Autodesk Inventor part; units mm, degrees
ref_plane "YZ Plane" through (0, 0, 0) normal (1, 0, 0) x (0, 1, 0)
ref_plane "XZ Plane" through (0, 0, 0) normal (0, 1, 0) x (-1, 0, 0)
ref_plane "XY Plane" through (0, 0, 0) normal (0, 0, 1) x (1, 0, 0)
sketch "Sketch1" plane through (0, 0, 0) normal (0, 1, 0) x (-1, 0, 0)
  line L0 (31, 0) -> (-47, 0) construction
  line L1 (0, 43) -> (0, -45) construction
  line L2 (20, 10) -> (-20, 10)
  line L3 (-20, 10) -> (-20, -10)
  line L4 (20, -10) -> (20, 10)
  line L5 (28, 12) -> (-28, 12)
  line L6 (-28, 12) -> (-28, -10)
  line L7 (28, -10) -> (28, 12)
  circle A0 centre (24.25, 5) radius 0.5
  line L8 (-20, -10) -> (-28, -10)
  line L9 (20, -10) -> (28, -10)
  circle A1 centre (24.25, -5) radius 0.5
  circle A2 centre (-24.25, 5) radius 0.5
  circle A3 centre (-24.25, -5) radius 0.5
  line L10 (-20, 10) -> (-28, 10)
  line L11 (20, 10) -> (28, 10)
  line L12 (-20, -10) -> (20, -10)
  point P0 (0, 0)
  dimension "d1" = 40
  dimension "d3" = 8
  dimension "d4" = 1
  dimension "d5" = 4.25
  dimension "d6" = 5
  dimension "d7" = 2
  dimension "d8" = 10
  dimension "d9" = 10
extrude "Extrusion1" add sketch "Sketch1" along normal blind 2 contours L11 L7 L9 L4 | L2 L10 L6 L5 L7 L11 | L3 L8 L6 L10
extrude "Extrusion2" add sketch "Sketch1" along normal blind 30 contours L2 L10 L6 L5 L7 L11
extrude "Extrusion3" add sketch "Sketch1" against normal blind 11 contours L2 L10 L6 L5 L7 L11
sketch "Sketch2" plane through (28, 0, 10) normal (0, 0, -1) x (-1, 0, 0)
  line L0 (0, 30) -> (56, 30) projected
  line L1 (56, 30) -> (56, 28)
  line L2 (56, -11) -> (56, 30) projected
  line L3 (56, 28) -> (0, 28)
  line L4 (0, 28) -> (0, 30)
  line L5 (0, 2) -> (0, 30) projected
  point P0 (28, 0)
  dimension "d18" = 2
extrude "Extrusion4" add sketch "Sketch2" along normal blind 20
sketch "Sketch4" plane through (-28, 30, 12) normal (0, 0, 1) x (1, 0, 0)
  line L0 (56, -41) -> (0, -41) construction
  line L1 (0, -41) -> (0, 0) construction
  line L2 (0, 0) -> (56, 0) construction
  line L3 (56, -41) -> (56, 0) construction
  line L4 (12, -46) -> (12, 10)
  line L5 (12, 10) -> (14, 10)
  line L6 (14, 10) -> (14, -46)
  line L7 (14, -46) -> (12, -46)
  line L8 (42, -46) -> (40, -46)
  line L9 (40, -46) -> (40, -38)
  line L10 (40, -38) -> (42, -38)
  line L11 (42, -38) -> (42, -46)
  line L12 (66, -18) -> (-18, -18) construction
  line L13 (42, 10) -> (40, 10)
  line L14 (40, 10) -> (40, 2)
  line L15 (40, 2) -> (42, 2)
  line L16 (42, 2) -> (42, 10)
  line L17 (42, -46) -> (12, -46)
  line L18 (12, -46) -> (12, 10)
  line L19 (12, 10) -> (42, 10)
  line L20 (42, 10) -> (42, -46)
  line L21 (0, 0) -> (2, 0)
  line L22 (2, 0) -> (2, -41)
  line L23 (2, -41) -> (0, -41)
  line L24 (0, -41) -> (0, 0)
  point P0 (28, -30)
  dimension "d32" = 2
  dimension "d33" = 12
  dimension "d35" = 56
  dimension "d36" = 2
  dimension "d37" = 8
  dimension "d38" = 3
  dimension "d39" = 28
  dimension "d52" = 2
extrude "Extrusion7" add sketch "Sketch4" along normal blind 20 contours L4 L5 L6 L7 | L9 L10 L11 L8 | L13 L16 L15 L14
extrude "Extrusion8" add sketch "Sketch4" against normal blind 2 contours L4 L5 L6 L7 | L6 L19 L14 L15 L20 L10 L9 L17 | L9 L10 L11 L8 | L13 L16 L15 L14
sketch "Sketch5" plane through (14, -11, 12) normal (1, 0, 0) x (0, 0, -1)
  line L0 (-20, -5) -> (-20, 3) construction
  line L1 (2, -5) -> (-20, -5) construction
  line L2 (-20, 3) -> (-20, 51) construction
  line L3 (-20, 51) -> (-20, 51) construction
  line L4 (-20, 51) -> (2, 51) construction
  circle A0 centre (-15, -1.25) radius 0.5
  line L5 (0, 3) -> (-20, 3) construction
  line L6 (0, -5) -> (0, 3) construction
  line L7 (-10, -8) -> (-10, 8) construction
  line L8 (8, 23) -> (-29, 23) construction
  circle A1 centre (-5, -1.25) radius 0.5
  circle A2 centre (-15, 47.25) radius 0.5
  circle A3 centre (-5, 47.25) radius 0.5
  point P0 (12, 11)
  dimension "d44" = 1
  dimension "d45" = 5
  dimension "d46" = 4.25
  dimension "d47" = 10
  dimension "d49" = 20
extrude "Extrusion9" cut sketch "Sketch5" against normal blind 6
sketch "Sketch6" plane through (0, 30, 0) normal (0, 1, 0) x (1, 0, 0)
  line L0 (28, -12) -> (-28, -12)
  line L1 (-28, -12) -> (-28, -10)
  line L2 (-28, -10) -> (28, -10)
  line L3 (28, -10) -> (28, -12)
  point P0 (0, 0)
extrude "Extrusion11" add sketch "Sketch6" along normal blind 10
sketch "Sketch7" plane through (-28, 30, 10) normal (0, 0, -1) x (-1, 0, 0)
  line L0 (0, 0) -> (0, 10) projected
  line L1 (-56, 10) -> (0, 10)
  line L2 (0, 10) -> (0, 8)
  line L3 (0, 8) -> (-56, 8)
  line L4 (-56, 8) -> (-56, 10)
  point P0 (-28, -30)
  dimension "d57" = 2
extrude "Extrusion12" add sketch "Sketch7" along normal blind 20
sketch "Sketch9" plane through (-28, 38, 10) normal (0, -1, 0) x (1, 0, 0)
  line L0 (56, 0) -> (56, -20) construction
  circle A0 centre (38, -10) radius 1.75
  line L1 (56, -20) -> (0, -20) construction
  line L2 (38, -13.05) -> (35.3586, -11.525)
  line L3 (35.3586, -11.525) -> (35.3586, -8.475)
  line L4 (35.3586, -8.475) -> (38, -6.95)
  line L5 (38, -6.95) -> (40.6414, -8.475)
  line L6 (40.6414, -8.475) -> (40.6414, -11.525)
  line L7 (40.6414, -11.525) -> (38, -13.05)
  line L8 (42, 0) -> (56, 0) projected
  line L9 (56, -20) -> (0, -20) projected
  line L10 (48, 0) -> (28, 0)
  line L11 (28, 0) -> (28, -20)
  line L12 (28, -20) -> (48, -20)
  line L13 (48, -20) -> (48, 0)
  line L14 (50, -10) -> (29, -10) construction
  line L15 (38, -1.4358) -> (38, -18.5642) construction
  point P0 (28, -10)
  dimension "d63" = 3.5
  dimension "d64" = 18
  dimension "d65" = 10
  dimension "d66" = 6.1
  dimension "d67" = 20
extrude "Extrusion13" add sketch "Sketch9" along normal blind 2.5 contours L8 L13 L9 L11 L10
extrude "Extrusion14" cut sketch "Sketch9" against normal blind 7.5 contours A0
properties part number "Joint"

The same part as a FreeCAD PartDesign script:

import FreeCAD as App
import Part
import Sketcher
Q = App.Units.Quantity

doc = App.newDocument("Part")
body = doc.addObject("PartDesign::Body", "Body")
body.AllowCompound = True

# Sketch on XZ plane
sketch1 = doc.addObject("Sketcher::SketchObject", "Sketch")
body.addObject(sketch1)
sketch1.AttachmentSupport = (doc.XZ_Plane, [""])
sketch1.MapMode = "FlatFace"
sketch1.addGeometry([
    Part.LineSegment(App.Vector(-28, -10, 0), App.Vector(-28, 12, 0)),  # 0
    Part.LineSegment(App.Vector(-28, 12, 0), App.Vector(28, 12, 0)),  # 1
    Part.LineSegment(App.Vector(28, 12, 0), App.Vector(28, -10, 0)),  # 2
    Part.LineSegment(App.Vector(28, -10, 0), App.Vector(20, -10, 0)),  # 3
    Part.LineSegment(App.Vector(20, -10, 0), App.Vector(20, 10, 0)),  # 4
    Part.LineSegment(App.Vector(20, 10, 0), App.Vector(-20, 10, 0)),  # 5
    Part.LineSegment(App.Vector(-20, 10, 0), App.Vector(-20, -10, 0)),  # 6
    Part.LineSegment(App.Vector(-20, -10, 0), App.Vector(-28, -10, 0)),  # 7
    Part.Circle(App.Vector(-24.2, -5, 0), App.Vector(0, 0, 1), 0.5),  # 8
    Part.Circle(App.Vector(-24.2, 5, 0), App.Vector(0, 0, 1), 0.5),  # 9
    Part.Circle(App.Vector(24.2, 5, 0), App.Vector(0, 0, 1), 0.5),  # 10
    Part.Circle(App.Vector(24.2, -5, 0), App.Vector(0, 0, 1), 0.5),  # 11
], False)
sketch1.addConstraint([
    Sketcher.Constraint("Coincident", 0, 2, 1, 1),
    Sketcher.Constraint("Coincident", 1, 2, 2, 1),
    Sketcher.Constraint("Coincident", 2, 2, 3, 1),
    Sketcher.Constraint("Coincident", 3, 2, 4, 1),
    Sketcher.Constraint("Coincident", 4, 2, 5, 1),
    Sketcher.Constraint("Coincident", 5, 2, 6, 1),
    Sketcher.Constraint("Coincident", 6, 2, 7, 1),
    Sketcher.Constraint("Coincident", 7, 2, 0, 1),
    Sketcher.Constraint("Vertical", 0),
    Sketcher.Constraint("Horizontal", 1),
    Sketcher.Constraint("Vertical", 2),
    Sketcher.Constraint("Horizontal", 3),
    Sketcher.Constraint("Vertical", 4),
    Sketcher.Constraint("Horizontal", 5),
    Sketcher.Constraint("Vertical", 6),
    Sketcher.Constraint("Horizontal", 7),
    Sketcher.Constraint("Equal", 8, 9),
    Sketcher.Constraint("Equal", 9, 10),
    Sketcher.Constraint("Equal", 10, 11),
    Sketcher.Constraint("Symmetric", 8, 3, 10, 3, -1, 1),
    Sketcher.Constraint("Symmetric", 9, 3, 11, 3, -1, 1),
    Sketcher.Constraint("Symmetric", 3, 2, 5, 2, -1, 1),
    Sketcher.Constraint("Symmetric", 9, 3, 10, 3, -2),
    Sketcher.Constraint("Symmetric", 2, 2, 7, 2, -2),
    Sketcher.Constraint("Diameter", 8, 1.0),
    Sketcher.Constraint("DistanceX", 3, 2, 3, 1, 8.0),
    Sketcher.Constraint("DistanceX", 5, 2, 5, 1, 40.0),
    Sketcher.Constraint("DistanceY", 8, 3, -1, 1, 5.0),
    Sketcher.Constraint("DistanceY", 2, 2, -1, 1, 10.0),
    Sketcher.Constraint("DistanceY", 4, 2, 1, 2, 2.0),
    Sketcher.Constraint("DistanceX", 3, 2, 11, 3, 4.25),
])
pad1 = doc.addObject("PartDesign::Pad", "Pad")
body.addObject(pad1)
pad1.Profile = sketch1
pad1.Length = 2
pad1.Reversed = True

# Sketch on XZ plane
sketch2 = doc.addObject("Sketcher::SketchObject", "Sketch001")
body.addObject(sketch2)
sketch2.AttachmentSupport = (doc.XZ_Plane, [""])
sketch2.MapMode = "FlatFace"
sketch2.addGeometry([
    Part.LineSegment(App.Vector(28, 10, 0), App.Vector(-28, 10, 0)),
    Part.LineSegment(App.Vector(-28, 10, 0), App.Vector(-28, 12, 0)),
    Part.LineSegment(App.Vector(-28, 12, 0), App.Vector(28, 12, 0)),
    Part.LineSegment(App.Vector(28, 12, 0), App.Vector(28, 10, 0)),
], False)
sketch2.addConstraint([
    Sketcher.Constraint("Coincident", 0, 2, 1, 1),
    Sketcher.Constraint("Coincident", 1, 2, 2, 1),
    Sketcher.Constraint("Coincident", 2, 2, 3, 1),
    Sketcher.Constraint("Coincident", 3, 2, 0, 1),
    Sketcher.Constraint("Horizontal", 0),
    Sketcher.Constraint("Vertical", 1),
    Sketcher.Constraint("Horizontal", 2),
    Sketcher.Constraint("Vertical", 3),
    Sketcher.Constraint("DistanceY", 1, 1, 1, 2, 2.0),
    Sketcher.Constraint("DistanceY", -1, 1, 0, 2, 10.0),
    Sketcher.Constraint("DistanceX", 0, 2, 0, 1, 56.0),
    Sketcher.Constraint("DistanceX", 0, 2, -1, 1, 28.0),
])
pad2 = doc.addObject("PartDesign::Pad", "Pad001")
body.addObject(pad2)
pad2.Profile = sketch2
pad2.Length = 30
pad2.Reversed = True

# Sketch on XZ plane
sketch3 = doc.addObject("Sketcher::SketchObject", "Sketch002")
body.addObject(sketch3)
sketch3.AttachmentSupport = (doc.XZ_Plane, [""])
sketch3.MapMode = "FlatFace"
sketch3.addGeometry([
    Part.LineSegment(App.Vector(28, 10, 0), App.Vector(-28, 10, 0)),
    Part.LineSegment(App.Vector(-28, 10, 0), App.Vector(-28, 12, 0)),
    Part.LineSegment(App.Vector(-28, 12, 0), App.Vector(28, 12, 0)),
    Part.LineSegment(App.Vector(28, 12, 0), App.Vector(28, 10, 0)),
], False)
sketch3.addConstraint([
    Sketcher.Constraint("Coincident", 0, 2, 1, 1),
    Sketcher.Constraint("Coincident", 1, 2, 2, 1),
    Sketcher.Constraint("Coincident", 2, 2, 3, 1),
    Sketcher.Constraint("Coincident", 3, 2, 0, 1),
    Sketcher.Constraint("Horizontal", 0),
    Sketcher.Constraint("Vertical", 1),
    Sketcher.Constraint("Horizontal", 2),
    Sketcher.Constraint("Vertical", 3),
    Sketcher.Constraint("DistanceY", 1, 1, 1, 2, 2.0),
    Sketcher.Constraint("DistanceY", -1, 1, 0, 2, 10.0),
    Sketcher.Constraint("DistanceX", 0, 2, 0, 1, 56.0),
    Sketcher.Constraint("DistanceX", 0, 2, -1, 1, 28.0),
])
pad3 = doc.addObject("PartDesign::Pad", "Pad002")
body.addObject(pad3)
pad3.Profile = sketch3
pad3.Length = 11

# Sketch on XY plane
sketch4 = doc.addObject("Sketcher::SketchObject", "Sketch003")
body.addObject(sketch4)
sketch4.AttachmentSupport = (doc.XY_Plane, [""])
sketch4.MapMode = "FlatFace"
sketch4.AttachmentOffset = App.Placement(App.Vector(0, 0, 10), App.Rotation())
sketch4.addGeometry([
    Part.LineSegment(App.Vector(-28, 30, 0), App.Vector(28, 30, 0)),
    Part.LineSegment(App.Vector(28, 30, 0), App.Vector(28, 28, 0)),
    Part.LineSegment(App.Vector(28, 28, 0), App.Vector(-28, 28, 0)),
    Part.LineSegment(App.Vector(-28, 28, 0), App.Vector(-28, 30, 0)),
], False)
sketch4.addConstraint([
    Sketcher.Constraint("Coincident", 0, 2, 1, 1),
    Sketcher.Constraint("Coincident", 1, 2, 2, 1),
    Sketcher.Constraint("Coincident", 2, 2, 3, 1),
    Sketcher.Constraint("Coincident", 3, 2, 0, 1),
    Sketcher.Constraint("Horizontal", 0),
    Sketcher.Constraint("Vertical", 1),
    Sketcher.Constraint("Horizontal", 2),
    Sketcher.Constraint("Vertical", 3),
    Sketcher.Constraint("DistanceY", 1, 2, 1, 1, 2.0),
    Sketcher.Constraint("DistanceX", 0, 1, 0, 2, 56.0),
    Sketcher.Constraint("DistanceX", -1, 1, 0, 2, 28.0),
    Sketcher.Constraint("DistanceY", -1, 1, 0, 2, 30.0),
])
pad4 = doc.addObject("PartDesign::Pad", "Pad003")
body.addObject(pad4)
pad4.Profile = sketch4
pad4.Length = 20
pad4.Reversed = True

# Sketch on XY plane
sketch5 = doc.addObject("Sketcher::SketchObject", "Sketch004")
body.addObject(sketch5)
sketch5.AttachmentSupport = (doc.XY_Plane, [""])
sketch5.MapMode = "FlatFace"
sketch5.AttachmentOffset = App.Placement(App.Vector(0, 0, 12), App.Rotation())
sketch5.addGeometry([
    Part.LineSegment(App.Vector(-16, 40, 0), App.Vector(-16, -16, 0)),  # 0
    Part.LineSegment(App.Vector(-16, -16, 0), App.Vector(-14, -16, 0)),  # 1
    Part.LineSegment(App.Vector(-14, -16, 0), App.Vector(-14, 40, 0)),  # 2
    Part.LineSegment(App.Vector(-14, 40, 0), App.Vector(-16, 40, 0)),  # 3
    Part.LineSegment(App.Vector(12, -8, 0), App.Vector(12, -16, 0)),  # 4
    Part.LineSegment(App.Vector(12, -16, 0), App.Vector(14, -16, 0)),  # 5
    Part.LineSegment(App.Vector(14, -16, 0), App.Vector(14, -8, 0)),  # 6
    Part.LineSegment(App.Vector(14, -8, 0), App.Vector(12, -8, 0)),  # 7
    Part.LineSegment(App.Vector(14, 40, 0), App.Vector(12, 40, 0)),  # 8
    Part.LineSegment(App.Vector(12, 40, 0), App.Vector(12, 32, 0)),  # 9
    Part.LineSegment(App.Vector(12, 32, 0), App.Vector(14, 32, 0)),  # 10
    Part.LineSegment(App.Vector(14, 32, 0), App.Vector(14, 40, 0)),  # 11
], False)
sketch5.addConstraint([
    Sketcher.Constraint("Coincident", 0, 2, 1, 1),
    Sketcher.Constraint("Coincident", 1, 2, 2, 1),
    Sketcher.Constraint("Coincident", 2, 2, 3, 1),
    Sketcher.Constraint("Coincident", 3, 2, 0, 1),
    Sketcher.Constraint("Coincident", 4, 2, 5, 1),
    Sketcher.Constraint("Coincident", 5, 2, 6, 1),
    Sketcher.Constraint("Coincident", 6, 2, 7, 1),
    Sketcher.Constraint("Coincident", 7, 2, 4, 1),
    Sketcher.Constraint("Coincident", 8, 2, 9, 1),
    Sketcher.Constraint("Coincident", 9, 2, 10, 1),
    Sketcher.Constraint("Coincident", 10, 2, 11, 1),
    Sketcher.Constraint("Coincident", 11, 2, 8, 1),
    Sketcher.Constraint("Vertical", 0),
    Sketcher.Constraint("Horizontal", 1),
    Sketcher.Constraint("Vertical", 2),
    Sketcher.Constraint("Horizontal", 3),
    Sketcher.Constraint("Vertical", 4),
    Sketcher.Constraint("Horizontal", 5),
    Sketcher.Constraint("Vertical", 6),
    Sketcher.Constraint("Horizontal", 7),
    Sketcher.Constraint("Horizontal", 8),
    Sketcher.Constraint("Vertical", 9),
    Sketcher.Constraint("Horizontal", 10),
    Sketcher.Constraint("Vertical", 11),
    Sketcher.Constraint("Symmetric", 1, 2, 5, 2, -2),
    Sketcher.Constraint("Symmetric", 2, 2, 11, 2, -2),
    Sketcher.Constraint("Vertical", 7, 2, 8, 2),
    Sketcher.Constraint("Equal", 3, 5),
    Sketcher.Constraint("Equal", 6, 9),
    Sketcher.Constraint("DistanceX", 1, 1, 1, 2, 2.0),
    Sketcher.Constraint("DistanceY", 0, 2, 0, 1, 56.0),
    Sketcher.Constraint("DistanceY", 4, 2, 4, 1, 8.0),
    Sketcher.Constraint("DistanceX", -1, 1, 4, 2, 12.0),
    Sketcher.Constraint("DistanceY", 6, 2, -1, 1, 8.0),
])
pad5 = doc.addObject("PartDesign::Pad", "Pad004")
body.addObject(pad5)
pad5.Profile = sketch5
pad5.Length = 20

# Sketch on XY plane
sketch6 = doc.addObject("Sketcher::SketchObject", "Sketch005")
body.addObject(sketch6)
sketch6.AttachmentSupport = (doc.XY_Plane, [""])
sketch6.MapMode = "FlatFace"
sketch6.AttachmentOffset = App.Placement(App.Vector(0, 0, 12), App.Rotation())
sketch6.addGeometry([
    Part.LineSegment(App.Vector(-16, 40, 0), App.Vector(-16, -16, 0)),
    Part.LineSegment(App.Vector(-16, -16, 0), App.Vector(14, -16, 0)),
    Part.LineSegment(App.Vector(14, -16, 0), App.Vector(14, 40, 0)),
    Part.LineSegment(App.Vector(14, 40, 0), App.Vector(-16, 40, 0)),
], False)
sketch6.addConstraint([
    Sketcher.Constraint("Coincident", 0, 2, 1, 1),
    Sketcher.Constraint("Coincident", 1, 2, 2, 1),
    Sketcher.Constraint("Coincident", 2, 2, 3, 1),
    Sketcher.Constraint("Coincident", 3, 2, 0, 1),
    Sketcher.Constraint("Vertical", 0),
    Sketcher.Constraint("Horizontal", 1),
    Sketcher.Constraint("Vertical", 2),
    Sketcher.Constraint("Horizontal", 3),
    Sketcher.Constraint("DistanceY", 0, 2, 0, 1, 56.0),
    Sketcher.Constraint("DistanceX", 1, 1, 1, 2, 30.0),
    Sketcher.Constraint("DistanceX", 0, 2, -1, 1, 16.0),
    Sketcher.Constraint("DistanceY", 0, 2, -1, 1, 16.0),
])
pad6 = doc.addObject("PartDesign::Pad", "Pad005")
body.addObject(pad6)
pad6.Profile = sketch6
pad6.Length = 2
pad6.Reversed = True

# Sketch on YZ plane
sketch7 = doc.addObject("Sketcher::SketchObject", "Sketch006")
body.addObject(sketch7)
sketch7.AttachmentSupport = (doc.YZ_Plane, [""])
sketch7.MapMode = "FlatFace"
sketch7.AttachmentOffset = App.Placement(App.Vector(0, 0, 14), App.Rotation())
sketch7.addGeometry([
    Part.Circle(App.Vector(-12.2, 27, 0), App.Vector(0, 0, 1), 0.5),
    Part.Circle(App.Vector(-12.2, 17, 0), App.Vector(0, 0, 1), 0.5),
    Part.Circle(App.Vector(36.2, 27, 0), App.Vector(0, 0, 1), 0.5),
    Part.Circle(App.Vector(36.2, 17, 0), App.Vector(0, 0, 1), 0.5),
], False)
sketch7.addConstraint([
    Sketcher.Constraint("Equal", 0, 1),
    Sketcher.Constraint("Equal", 1, 2),
    Sketcher.Constraint("Equal", 2, 3),
    Sketcher.Constraint("Horizontal", 0, 3, 2, 3),
    Sketcher.Constraint("Horizontal", 1, 3, 3, 3),
    Sketcher.Constraint("Vertical", 0, 3, 1, 3),
    Sketcher.Constraint("Vertical", 2, 3, 3, 3),
    Sketcher.Constraint("Diameter", 0, 1.0),
    Sketcher.Constraint("DistanceY", 1, 3, 0, 3, 10.0),
    Sketcher.Constraint("DistanceY", -1, 1, 0, 3, 27.0),
    Sketcher.Constraint("DistanceX", 0, 3, 2, 3, 48.5),
    Sketcher.Constraint("DistanceX", 0, 3, -1, 1, 12.25),
])
pocket1 = doc.addObject("PartDesign::Pocket", "Pocket")
body.addObject(pocket1)
pocket1.Profile = sketch7
pocket1.Length = 6

# Sketch on XZ plane
sketch8 = doc.addObject("Sketcher::SketchObject", "Sketch007")
body.addObject(sketch8)
sketch8.AttachmentSupport = (doc.XZ_Plane, [""])
sketch8.MapMode = "FlatFace"
sketch8.AttachmentOffset = App.Placement(App.Vector(0, 0, -30), App.Rotation())
sketch8.addGeometry([
    Part.LineSegment(App.Vector(-28, 12, 0), App.Vector(28, 12, 0)),
    Part.LineSegment(App.Vector(28, 12, 0), App.Vector(28, 10, 0)),
    Part.LineSegment(App.Vector(28, 10, 0), App.Vector(-28, 10, 0)),
    Part.LineSegment(App.Vector(-28, 10, 0), App.Vector(-28, 12, 0)),
], False)
sketch8.addConstraint([
    Sketcher.Constraint("Coincident", 0, 2, 1, 1),
    Sketcher.Constraint("Coincident", 1, 2, 2, 1),
    Sketcher.Constraint("Coincident", 2, 2, 3, 1),
    Sketcher.Constraint("Coincident", 3, 2, 0, 1),
    Sketcher.Constraint("Horizontal", 0),
    Sketcher.Constraint("Vertical", 1),
    Sketcher.Constraint("Horizontal", 2),
    Sketcher.Constraint("Vertical", 3),
    Sketcher.Constraint("DistanceX", 0, 1, 0, 2, 56.0),
    Sketcher.Constraint("DistanceY", 1, 2, 1, 1, 2.0),
    Sketcher.Constraint("DistanceX", -1, 1, 0, 2, 28.0),
    Sketcher.Constraint("DistanceY", -1, 1, 0, 2, 12.0),
])
pad7 = doc.addObject("PartDesign::Pad", "Pad006")
body.addObject(pad7)
pad7.Profile = sketch8
pad7.Length = 10
pad7.Reversed = True

# Sketch on XY plane
sketch9 = doc.addObject("Sketcher::SketchObject", "Sketch008")
body.addObject(sketch9)
sketch9.AttachmentSupport = (doc.XY_Plane, [""])
sketch9.MapMode = "FlatFace"
sketch9.AttachmentOffset = App.Placement(App.Vector(0, 0, 10), App.Rotation())
sketch9.addGeometry([
    Part.LineSegment(App.Vector(28, 38, 0), App.Vector(-28, 38, 0)),
    Part.LineSegment(App.Vector(-28, 38, 0), App.Vector(-28, 40, 0)),
    Part.LineSegment(App.Vector(-28, 40, 0), App.Vector(28, 40, 0)),
    Part.LineSegment(App.Vector(28, 40, 0), App.Vector(28, 38, 0)),
], False)
sketch9.addConstraint([
    Sketcher.Constraint("Coincident", 0, 2, 1, 1),
    Sketcher.Constraint("Coincident", 1, 2, 2, 1),
    Sketcher.Constraint("Coincident", 2, 2, 3, 1),
    Sketcher.Constraint("Coincident", 3, 2, 0, 1),
    Sketcher.Constraint("Horizontal", 0),
    Sketcher.Constraint("Vertical", 1),
    Sketcher.Constraint("Horizontal", 2),
    Sketcher.Constraint("Vertical", 3),
    Sketcher.Constraint("DistanceY", 1, 1, 1, 2, 2.0),
    Sketcher.Constraint("DistanceX", 0, 2, 0, 1, 56.0),
    Sketcher.Constraint("DistanceX", 0, 2, -1, 1, 28.0),
    Sketcher.Constraint("DistanceY", -1, 1, 0, 2, 38.0),
])
pad8 = doc.addObject("PartDesign::Pad", "Pad007")
body.addObject(pad8)
pad8.Profile = sketch9
pad8.Length = 20
pad8.Reversed = True

# Sketch on XZ plane
sketch10 = doc.addObject("Sketcher::SketchObject", "Sketch009")
body.addObject(sketch10)
sketch10.AttachmentSupport = (doc.XZ_Plane, [""])
sketch10.MapMode = "FlatFace"
sketch10.AttachmentOffset = App.Placement(App.Vector(0, 0, -38), App.Rotation())
sketch10.addGeometry([
    Part.LineSegment(App.Vector(20, 10, 0), App.Vector(0, 10, 0)),  # 0
    Part.LineSegment(App.Vector(0, 10, 0), App.Vector(0, -10, 0)),  # 1
    Part.LineSegment(App.Vector(0, -10, 0), App.Vector(20, -10, 0)),  # 2
    Part.LineSegment(App.Vector(20, -10, 0), App.Vector(20, 10, 0)),  # 3
    Part.LineSegment(App.Vector(12.6, -1.5, 0), App.Vector(10, -3, 0)),  # 4
    Part.LineSegment(App.Vector(10, -3, 0), App.Vector(7.4, -1.5, 0)),  # 5
    Part.LineSegment(App.Vector(7.4, -1.5, 0), App.Vector(7.4, 1.5, 0)),  # 6
    Part.LineSegment(App.Vector(7.4, 1.5, 0), App.Vector(10, 3, 0)),  # 7
    Part.LineSegment(App.Vector(10, 3, 0), App.Vector(12.6, 1.5, 0)),  # 8
    Part.LineSegment(App.Vector(12.6, 1.5, 0), App.Vector(12.6, -1.5, 0)),  # 9
], False)
sketch10.addConstraint([
    Sketcher.Constraint("Coincident", 0, 2, 1, 1),
    Sketcher.Constraint("Coincident", 1, 2, 2, 1),
    Sketcher.Constraint("Coincident", 2, 2, 3, 1),
    Sketcher.Constraint("Coincident", 3, 2, 0, 1),
    Sketcher.Constraint("Coincident", 4, 2, 5, 1),
    Sketcher.Constraint("Coincident", 5, 2, 6, 1),
    Sketcher.Constraint("Coincident", 6, 2, 7, 1),
    Sketcher.Constraint("Coincident", 7, 2, 8, 1),
    Sketcher.Constraint("Coincident", 8, 2, 9, 1),
    Sketcher.Constraint("Coincident", 9, 2, 4, 1),
    Sketcher.Constraint("Horizontal", 0),
    Sketcher.Constraint("Vertical", 1),
    Sketcher.Constraint("Horizontal", 2),
    Sketcher.Constraint("Vertical", 3),
    Sketcher.Constraint("Vertical", 6),
    Sketcher.Constraint("Vertical", 9),
    Sketcher.Constraint("Symmetric", 0, 2, 1, 2, -1, 1),
    Sketcher.Constraint("Symmetric", 4, 2, 7, 2, -1),
    Sketcher.Constraint("Parallel", 4, 7),
    Sketcher.Constraint("Parallel", 5, 8),
    Sketcher.Constraint("Horizontal", 6, 2, 8, 2),
    Sketcher.Constraint("Horizontal", 5, 2, 9, 2),
    Sketcher.Constraint("Equal", 2, 1),
    Sketcher.Constraint("DistanceX", 0, 2, 0, 1, 20.0),
    Sketcher.Constraint("DistanceX", -1, 1, 4, 2, 10.0),
    Sketcher.Constraint("DistanceY", 4, 2, 7, 2, 6.1),
    Sketcher.Constraint("Angle", 4, Q("-150.0002 deg")),
    Sketcher.Constraint("DistanceY", 6, 1, 6, 2, 3.05),
])
pad9 = doc.addObject("PartDesign::Pad", "Pad008")
body.addObject(pad9)
pad9.Profile = sketch10
pad9.Length = 2.5

# Sketch on XZ plane
sketch11 = doc.addObject("Sketcher::SketchObject", "Sketch010")
body.addObject(sketch11)
sketch11.AttachmentSupport = (doc.XZ_Plane, [""])
sketch11.MapMode = "FlatFace"
sketch11.AttachmentOffset = App.Placement(App.Vector(0, 0, -38), App.Rotation())
sketch11.addGeometry(Part.Circle(App.Vector(10, 0, 0), App.Vector(0, 0, 1), 1.8), False)
sketch11.addConstraint([
    Sketcher.Constraint("PointOnObject", 0, 3, -1),
    Sketcher.Constraint("Diameter", 0, 3.5),
    Sketcher.Constraint("DistanceX", -1, 1, 0, 3, 10.0),
])
pocket2 = doc.addObject("PartDesign::Pocket", "Pocket001")
body.addObject(pocket2)
pocket2.Profile = sketch11
pocket2.Length = 7.5

doc.recompute()
